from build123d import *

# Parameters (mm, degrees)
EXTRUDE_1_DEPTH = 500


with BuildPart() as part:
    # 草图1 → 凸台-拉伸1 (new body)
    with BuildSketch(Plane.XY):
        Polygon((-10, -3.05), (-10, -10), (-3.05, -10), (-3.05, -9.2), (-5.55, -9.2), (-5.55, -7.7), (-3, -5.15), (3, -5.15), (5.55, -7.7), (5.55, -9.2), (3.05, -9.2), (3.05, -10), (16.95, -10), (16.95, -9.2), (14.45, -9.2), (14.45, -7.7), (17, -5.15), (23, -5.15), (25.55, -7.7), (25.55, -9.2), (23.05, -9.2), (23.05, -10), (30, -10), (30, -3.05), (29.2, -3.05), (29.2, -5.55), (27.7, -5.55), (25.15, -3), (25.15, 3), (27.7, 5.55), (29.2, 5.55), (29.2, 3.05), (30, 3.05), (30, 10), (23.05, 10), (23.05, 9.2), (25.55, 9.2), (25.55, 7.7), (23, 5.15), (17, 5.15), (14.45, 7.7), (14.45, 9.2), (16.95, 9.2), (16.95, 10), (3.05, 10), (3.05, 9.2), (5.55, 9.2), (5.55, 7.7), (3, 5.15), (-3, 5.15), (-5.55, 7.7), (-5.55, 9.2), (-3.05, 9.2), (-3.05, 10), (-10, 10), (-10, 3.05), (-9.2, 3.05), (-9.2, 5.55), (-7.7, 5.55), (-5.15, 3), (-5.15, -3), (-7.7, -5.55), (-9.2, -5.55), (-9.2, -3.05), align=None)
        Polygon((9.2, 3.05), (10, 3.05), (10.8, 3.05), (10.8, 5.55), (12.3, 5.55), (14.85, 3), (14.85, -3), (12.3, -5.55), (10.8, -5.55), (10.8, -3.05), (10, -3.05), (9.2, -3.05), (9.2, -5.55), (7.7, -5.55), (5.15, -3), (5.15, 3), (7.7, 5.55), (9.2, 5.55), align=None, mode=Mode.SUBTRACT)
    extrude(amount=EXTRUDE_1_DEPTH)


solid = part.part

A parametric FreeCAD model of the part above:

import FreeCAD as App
import Part
import Sketcher

V = App.Vector
Q = App.Units.Quantity


def add_polygon(sketch, points):
    """Adds a closed chain of lines whose ends are joined by coincident constraints."""
    first, n = sketch.GeometryCount, len(points)
    for a, b in zip(points, points[1:] + points[:1]):
        sketch.addGeometry(Part.LineSegment(App.Vector(*a, 0), App.Vector(*b, 0)), False)
    for i in range(n):
        sketch.addConstraint(Sketcher.Constraint("Coincident", first + i, 2, first + (i + 1) % n, 1))

doc = App.newDocument("Part")
body = doc.addObject("PartDesign::Body", "Body")

# Sketch on XY plane
sketch1 = body.newObject("Sketcher::SketchObject", "Sketch")
sketch1.AttachmentSupport = (doc.getObject("XY_Plane"), [""])
sketch1.MapMode = "FlatFace"
add_polygon(sketch1, [(-10, -3), (-10, -10), (-3, -10), (-3, -9.2), (-5.5, -9.2), (-5.5, -7.7), (-3, -5.2), (3, -5.2), (5.5, -7.7), (5.5, -9.2), (3, -9.2), (3, -10), (16.9, -10), (16.9, -9.2), (14.4, -9.2), (14.4, -7.7), (17, -5.2), (23, -5.2), (25.6, -7.7), (25.6, -9.2), (23.1, -9.2), (23.1, -10), (30, -10), (30, -3), (29.2, -3), (29.2, -5.5), (27.7, -5.5), (25.1, -3), (25.1, 3), (27.7, 5.5), (29.2, 5.5), (29.2, 3), (30, 3), (30, 10), (23.1, 10), (23.1, 9.2), (25.6, 9.2), (25.6, 7.7), (23, 5.2), (17, 5.2), (14.4, 7.7), (14.4, 9.2), (16.9, 9.2), (16.9, 10), (3, 10), (3, 9.2), (5.5, 9.2), (5.5, 7.7), (3, 5.2), (-3, 5.2), (-5.5, 7.7), (-5.5, 9.2), (-3, 9.2), (-3, 10), (-10, 10), (-10, 3), (-9.2, 3), (-9.2, 5.5), (-7.7, 5.5), (-5.2, 3), (-5.2, -3), (-7.7, -5.5), (-9.2, -5.5), (-9.2, -3)])  # lines 0-63
add_polygon(sketch1, [(9.2, 5.5), (9.2, 3), (10.8, 3), (10.8, 5.5), (12.3, 5.5), (14.8, 3), (14.8, -3), (12.3, -5.5), (10.8, -5.5), (10.8, -3), (9.2, -3), (9.2, -5.5), (7.7, -5.5), (5.2, -3), (5.2, 3), (7.7, 5.5)])  # lines 64-79
sketch1.addConstraint(Sketcher.Constraint("Vertical", 0))
sketch1.addConstraint(Sketcher.Constraint("Horizontal", 1))
sketch1.addConstraint(Sketcher.Constraint("Vertical", 2))
sketch1.addConstraint(Sketcher.Constraint("Horizontal", 3))
sketch1.addConstraint(Sketcher.Constraint("Vertical", 4))
sketch1.addConstraint(Sketcher.Constraint("Horizontal", 6))
sketch1.addConstraint(Sketcher.Constraint("Vertical", 8))
sketch1.addConstraint(Sketcher.Constraint("Horizontal", 9))
sketch1.addConstraint(Sketcher.Constraint("Vertical", 10))
sketch1.addConstraint(Sketcher.Constraint("Horizontal", 11))
sketch1.addConstraint(Sketcher.Constraint("Vertical", 12))
sketch1.addConstraint(Sketcher.Constraint("Horizontal", 13))
sketch1.addConstraint(Sketcher.Constraint("Vertical", 14))
sketch1.addConstraint(Sketcher.Constraint("Horizontal", 16))
sketch1.addConstraint(Sketcher.Constraint("Vertical", 18))
sketch1.addConstraint(Sketcher.Constraint("Horizontal", 19))
sketch1.addConstraint(Sketcher.Constraint("Vertical", 20))
sketch1.addConstraint(Sketcher.Constraint("Horizontal", 21))
sketch1.addConstraint(Sketcher.Constraint("Vertical", 22))
sketch1.addConstraint(Sketcher.Constraint("Horizontal", 23))
sketch1.addConstraint(Sketcher.Constraint("Vertical", 24))
sketch1.addConstraint(Sketcher.Constraint("Horizontal", 25))
sketch1.addConstraint(Sketcher.Constraint("Vertical", 27))
sketch1.addConstraint(Sketcher.Constraint("Horizontal", 29))
sketch1.addConstraint(Sketcher.Constraint("Vertical", 30))
sketch1.addConstraint(Sketcher.Constraint("Horizontal", 31))
sketch1.addConstraint(Sketcher.Constraint("Vertical", 32))
sketch1.addConstraint(Sketcher.Constraint("Horizontal", 33))
sketch1.addConstraint(Sketcher.Constraint("Vertical", 34))
sketch1.addConstraint(Sketcher.Constraint("Horizontal", 35))
sketch1.addConstraint(Sketcher.Constraint("Vertical", 36))
sketch1.addConstraint(Sketcher.Constraint("Horizontal", 38))
sketch1.addConstraint(Sketcher.Constraint("Vertical", 40))
sketch1.addConstraint(Sketcher.Constraint("Horizontal", 41))
sketch1.addConstraint(Sketcher.Constraint("Vertical", 42))
sketch1.addConstraint(Sketcher.Constraint("Horizontal", 43))
sketch1.addConstraint(Sketcher.Constraint("Vertical", 44))
sketch1.addConstraint(Sketcher.Constraint("Horizontal", 45))
sketch1.addConstraint(Sketcher.Constraint("Vertical", 46))
sketch1.addConstraint(Sketcher.Constraint("Horizontal", 48))
sketch1.addConstraint(Sketcher.Constraint("Vertical", 50))
sketch1.addConstraint(Sketcher.Constraint("Horizontal", 51))
sketch1.addConstraint(Sketcher.Constraint("Vertical", 52))
sketch1.addConstraint(Sketcher.Constraint("Horizontal", 53))
sketch1.addConstraint(Sketcher.Constraint("Vertical", 54))
sketch1.addConstraint(Sketcher.Constraint("Horizontal", 55))
sketch1.addConstraint(Sketcher.Constraint("Vertical", 56))
sketch1.addConstraint(Sketcher.Constraint("Horizontal", 57))
sketch1.addConstraint(Sketcher.Constraint("Vertical", 59))
sketch1.addConstraint(Sketcher.Constraint("Horizontal", 61))
sketch1.addConstraint(Sketcher.Constraint("Vertical", 62))
sketch1.addConstraint(Sketcher.Constraint("Horizontal", 63))
sketch1.addConstraint(Sketcher.Constraint("Vertical", 64))
sketch1.addConstraint(Sketcher.Constraint("Horizontal", 65))
sketch1.addConstraint(Sketcher.Constraint("Vertical", 66))
sketch1.addConstraint(Sketcher.Constraint("Horizontal", 67))
sketch1.addConstraint(Sketcher.Constraint("Vertical", 69))
sketch1.addConstraint(Sketcher.Constraint("Horizontal", 71))
sketch1.addConstraint(Sketcher.Constraint("Vertical", 72))
sketch1.addConstraint(Sketcher.Constraint("Horizontal", 73))
sketch1.addConstraint(Sketcher.Constraint("Vertical", 74))
sketch1.addConstraint(Sketcher.Constraint("Horizontal", 75))
sketch1.addConstraint(Sketcher.Constraint("Vertical", 77))
sketch1.addConstraint(Sketcher.Constraint("Horizontal", 79))
sketch1.addConstraint(Sketcher.Constraint("Symmetric", 1, 2, 43, 2, -1, 1))
sketch1.addConstraint(Sketcher.Constraint("Symmetric", 3, 2, 45, 2, -1, 1))
sketch1.addConstraint(Sketcher.Constraint("Symmetric", 5, 2, 47, 2, -1, 1))
sketch1.addConstraint(Sketcher.Constraint("Symmetric", 7, 2, 49, 2, -1, 1))
sketch1.addConstraint(Sketcher.Constraint("Symmetric", 9, 2, 51, 2, -1, 1))
sketch1.addConstraint(Sketcher.Constraint("Symmetric", 62, 2, 64, 2, -1, 1))
sketch1.addConstraint(Sketcher.Constraint("Symmetric", 55, 2, 73, 2, -1, 1))
sketch1.addConstraint(Sketcher.Constraint("Symmetric", 57, 2, 75, 2, -1, 1))
sketch1.addConstraint(Sketcher.Constraint("Symmetric", 58, 2, 76, 2, -1, 1))
sketch1.addConstraint(Sketcher.Constraint("Symmetric", 60, 2, 78, 2, -1, 1))
sketch1.addConstraint(Sketcher.Constraint("Symmetric", 4, 2, 7, 2, -2))
sketch1.addConstraint(Sketcher.Constraint("Symmetric", 2, 2, 9, 2, -2))
sketch1.addConstraint(Sketcher.Constraint("Symmetric", 55, 2, 64, 2, -2))
sketch1.addConstraint(Sketcher.Constraint("Symmetric", 60, 2, 75, 2, -2))
sketch1.addConstraint(Sketcher.Constraint("Symmetric", 25, 2, 28, 2, -1))
sketch1.addConstraint(Sketcher.Constraint("Symmetric", 23, 2, 30, 2, -1))
sketch1.addConstraint(Sketcher.Constraint("Symmetric", 21, 2, 32, 2, -1))
sketch1.addConstraint(Sketcher.Constraint("Symmetric", 19, 2, 34, 2, -1))
sketch1.addConstraint(Sketcher.Constraint("Symmetric", 17, 2, 36, 2, -1))
sketch1.addConstraint(Sketcher.Constraint("Symmetric", 16, 2, 37, 2, -1))
sketch1.addConstraint(Sketcher.Constraint("Symmetric", 14, 2, 39, 2, -1))
sketch1.addConstraint(Sketcher.Constraint("Symmetric", 12, 2, 41, 2, -1))
sketch1.addConstraint(Sketcher.Constraint("Symmetric", 0, 2, 53, 2, -1))
sketch1.addConstraint(Sketcher.Constraint("Symmetric", 67, 2, 70, 2, -1))
sketch1.addConstraint(Sketcher.Constraint("Perpendicular", 5, 7))
sketch1.addConstraint(Sketcher.Constraint("Perpendicular", 7, 15))
sketch1.addConstraint(Sketcher.Constraint("Perpendicular", 15, 17))
sketch1.addConstraint(Sketcher.Constraint("Parallel", 17, 26))
sketch1.addConstraint(Sketcher.Constraint("Perpendicular", 26, 28))
sketch1.addConstraint(Sketcher.Constraint("Parallel", 28, 37))
sketch1.addConstraint(Sketcher.Constraint("Perpendicular", 37, 39))
sketch1.addConstraint(Sketcher.Constraint("Perpendicular", 39, 47))
sketch1.addConstraint(Sketcher.Constraint("Perpendicular", 47, 49))
sketch1.addConstraint(Sketcher.Constraint("Parallel", 49, 58))
sketch1.addConstraint(Sketcher.Constraint("Perpendicular", 58, 60))
sketch1.addConstraint(Sketcher.Constraint("Perpendicular", 60, 68))
sketch1.addConstraint(Sketcher.Constraint("Perpendicular", 68, 70))
sketch1.addConstraint(Sketcher.Constraint("Perpendicular", 76, 78))
sketch1.addConstraint(Sketcher.Constraint("Horizontal", 1, 2, 10, 2))
sketch1.addConstraint(Sketcher.Constraint("Horizontal", 9, 2, 12, 2))
sketch1.addConstraint(Sketcher.Constraint("Horizontal", 7, 2, 14, 2))
sketch1.addConstraint(Sketcher.Constraint("Horizontal", 6, 2, 15, 2))
sketch1.addConstraint(Sketcher.Constraint("Horizontal", 14, 2, 17, 2))
sketch1.addConstraint(Sketcher.Constraint("Horizontal", 13, 2, 18, 2))
sketch1.addConstraint(Sketcher.Constraint("Horizontal", 11, 2, 20, 2))
sketch1.addConstraint(Sketcher.Constraint("Horizontal", 31, 2, 54, 2))
sketch1.addConstraint(Sketcher.Constraint("Horizontal", 29, 2, 56, 2))
sketch1.addConstraint(Sketcher.Constraint("Horizontal", 27, 2, 58, 2))
sketch1.addConstraint(Sketcher.Constraint("Horizontal", 57, 2, 66, 2))
sketch1.addConstraint(Sketcher.Constraint("Horizontal", 58, 2, 68, 2))
sketch1.addConstraint(Sketcher.Constraint("Vertical", 66, 2, 71, 2))
sketch1.addConstraint(Sketcher.Constraint("Equal", 9, 13))
sketch1.addConstraint(Sketcher.Constraint("Equal", 6, 16))
sketch1.addConstraint(Sketcher.Constraint("Equal", 13, 19))
sketch1.addConstraint(Sketcher.Constraint("Equal", 1, 21))
sketch1.addConstraint(Sketcher.Constraint("Equal", 31, 55))
sketch1.addConstraint(Sketcher.Constraint("Equal", 29, 57))
sketch1.addConstraint(Sketcher.Constraint("Equal", 61, 67))
sketch1.addConstraint(Sketcher.Constraint("Equal", 53, 0))
sketch1.addConstraint(Sketcher.Constraint("Equal", 63, 2))
sketch1.addConstraint(Sketcher.Constraint("Equal", 79, 4))
sketch1.addConstraint(Sketcher.Constraint("Equal", 51, 24))
sketch1.addConstraint(Sketcher.Constraint("Equal", 48, 27))
sketch1.addConstraint(Sketcher.Constraint("Equal", 17, 26))
sketch1.addConstraint(Sketcher.Constraint("DistanceX", 6, 1, 6, 2, Q("6 mm")))
sketch1.addConstraint(Sketcher.Constraint("DistanceX", 3, 2, 3, 1, Q("2.5 mm")))
sketch1.addConstraint(Sketcher.Constraint("DistanceX", 11, 1, 11, 2, Q("13.9 mm")))
sketch1.addConstraint(Sketcher.Constraint("DistanceX", 23, 2, 23, 1, Q("0.8 mm")))
sketch1.addConstraint(Sketcher.Constraint("DistanceX", 25, 2, 25, 1, Q("1.5 mm")))
sketch1.addConstraint(Sketcher.Constraint("DistanceX", 65, 1, 65, 2, Q("1.6 mm")))
sketch1.addConstraint(Sketcher.Constraint("DistanceX", 0, 2, -1, 1, Q("10 mm")))
sketch1.addConstraint(Sketcher.Constraint("DistanceX", -1, 1, 15, 2, Q("17 mm")))
pad1 = body.newObject("PartDesign::Pad", "Pad")
pad1.Profile = sketch1
pad1.Length = 500

doc.recompute()
